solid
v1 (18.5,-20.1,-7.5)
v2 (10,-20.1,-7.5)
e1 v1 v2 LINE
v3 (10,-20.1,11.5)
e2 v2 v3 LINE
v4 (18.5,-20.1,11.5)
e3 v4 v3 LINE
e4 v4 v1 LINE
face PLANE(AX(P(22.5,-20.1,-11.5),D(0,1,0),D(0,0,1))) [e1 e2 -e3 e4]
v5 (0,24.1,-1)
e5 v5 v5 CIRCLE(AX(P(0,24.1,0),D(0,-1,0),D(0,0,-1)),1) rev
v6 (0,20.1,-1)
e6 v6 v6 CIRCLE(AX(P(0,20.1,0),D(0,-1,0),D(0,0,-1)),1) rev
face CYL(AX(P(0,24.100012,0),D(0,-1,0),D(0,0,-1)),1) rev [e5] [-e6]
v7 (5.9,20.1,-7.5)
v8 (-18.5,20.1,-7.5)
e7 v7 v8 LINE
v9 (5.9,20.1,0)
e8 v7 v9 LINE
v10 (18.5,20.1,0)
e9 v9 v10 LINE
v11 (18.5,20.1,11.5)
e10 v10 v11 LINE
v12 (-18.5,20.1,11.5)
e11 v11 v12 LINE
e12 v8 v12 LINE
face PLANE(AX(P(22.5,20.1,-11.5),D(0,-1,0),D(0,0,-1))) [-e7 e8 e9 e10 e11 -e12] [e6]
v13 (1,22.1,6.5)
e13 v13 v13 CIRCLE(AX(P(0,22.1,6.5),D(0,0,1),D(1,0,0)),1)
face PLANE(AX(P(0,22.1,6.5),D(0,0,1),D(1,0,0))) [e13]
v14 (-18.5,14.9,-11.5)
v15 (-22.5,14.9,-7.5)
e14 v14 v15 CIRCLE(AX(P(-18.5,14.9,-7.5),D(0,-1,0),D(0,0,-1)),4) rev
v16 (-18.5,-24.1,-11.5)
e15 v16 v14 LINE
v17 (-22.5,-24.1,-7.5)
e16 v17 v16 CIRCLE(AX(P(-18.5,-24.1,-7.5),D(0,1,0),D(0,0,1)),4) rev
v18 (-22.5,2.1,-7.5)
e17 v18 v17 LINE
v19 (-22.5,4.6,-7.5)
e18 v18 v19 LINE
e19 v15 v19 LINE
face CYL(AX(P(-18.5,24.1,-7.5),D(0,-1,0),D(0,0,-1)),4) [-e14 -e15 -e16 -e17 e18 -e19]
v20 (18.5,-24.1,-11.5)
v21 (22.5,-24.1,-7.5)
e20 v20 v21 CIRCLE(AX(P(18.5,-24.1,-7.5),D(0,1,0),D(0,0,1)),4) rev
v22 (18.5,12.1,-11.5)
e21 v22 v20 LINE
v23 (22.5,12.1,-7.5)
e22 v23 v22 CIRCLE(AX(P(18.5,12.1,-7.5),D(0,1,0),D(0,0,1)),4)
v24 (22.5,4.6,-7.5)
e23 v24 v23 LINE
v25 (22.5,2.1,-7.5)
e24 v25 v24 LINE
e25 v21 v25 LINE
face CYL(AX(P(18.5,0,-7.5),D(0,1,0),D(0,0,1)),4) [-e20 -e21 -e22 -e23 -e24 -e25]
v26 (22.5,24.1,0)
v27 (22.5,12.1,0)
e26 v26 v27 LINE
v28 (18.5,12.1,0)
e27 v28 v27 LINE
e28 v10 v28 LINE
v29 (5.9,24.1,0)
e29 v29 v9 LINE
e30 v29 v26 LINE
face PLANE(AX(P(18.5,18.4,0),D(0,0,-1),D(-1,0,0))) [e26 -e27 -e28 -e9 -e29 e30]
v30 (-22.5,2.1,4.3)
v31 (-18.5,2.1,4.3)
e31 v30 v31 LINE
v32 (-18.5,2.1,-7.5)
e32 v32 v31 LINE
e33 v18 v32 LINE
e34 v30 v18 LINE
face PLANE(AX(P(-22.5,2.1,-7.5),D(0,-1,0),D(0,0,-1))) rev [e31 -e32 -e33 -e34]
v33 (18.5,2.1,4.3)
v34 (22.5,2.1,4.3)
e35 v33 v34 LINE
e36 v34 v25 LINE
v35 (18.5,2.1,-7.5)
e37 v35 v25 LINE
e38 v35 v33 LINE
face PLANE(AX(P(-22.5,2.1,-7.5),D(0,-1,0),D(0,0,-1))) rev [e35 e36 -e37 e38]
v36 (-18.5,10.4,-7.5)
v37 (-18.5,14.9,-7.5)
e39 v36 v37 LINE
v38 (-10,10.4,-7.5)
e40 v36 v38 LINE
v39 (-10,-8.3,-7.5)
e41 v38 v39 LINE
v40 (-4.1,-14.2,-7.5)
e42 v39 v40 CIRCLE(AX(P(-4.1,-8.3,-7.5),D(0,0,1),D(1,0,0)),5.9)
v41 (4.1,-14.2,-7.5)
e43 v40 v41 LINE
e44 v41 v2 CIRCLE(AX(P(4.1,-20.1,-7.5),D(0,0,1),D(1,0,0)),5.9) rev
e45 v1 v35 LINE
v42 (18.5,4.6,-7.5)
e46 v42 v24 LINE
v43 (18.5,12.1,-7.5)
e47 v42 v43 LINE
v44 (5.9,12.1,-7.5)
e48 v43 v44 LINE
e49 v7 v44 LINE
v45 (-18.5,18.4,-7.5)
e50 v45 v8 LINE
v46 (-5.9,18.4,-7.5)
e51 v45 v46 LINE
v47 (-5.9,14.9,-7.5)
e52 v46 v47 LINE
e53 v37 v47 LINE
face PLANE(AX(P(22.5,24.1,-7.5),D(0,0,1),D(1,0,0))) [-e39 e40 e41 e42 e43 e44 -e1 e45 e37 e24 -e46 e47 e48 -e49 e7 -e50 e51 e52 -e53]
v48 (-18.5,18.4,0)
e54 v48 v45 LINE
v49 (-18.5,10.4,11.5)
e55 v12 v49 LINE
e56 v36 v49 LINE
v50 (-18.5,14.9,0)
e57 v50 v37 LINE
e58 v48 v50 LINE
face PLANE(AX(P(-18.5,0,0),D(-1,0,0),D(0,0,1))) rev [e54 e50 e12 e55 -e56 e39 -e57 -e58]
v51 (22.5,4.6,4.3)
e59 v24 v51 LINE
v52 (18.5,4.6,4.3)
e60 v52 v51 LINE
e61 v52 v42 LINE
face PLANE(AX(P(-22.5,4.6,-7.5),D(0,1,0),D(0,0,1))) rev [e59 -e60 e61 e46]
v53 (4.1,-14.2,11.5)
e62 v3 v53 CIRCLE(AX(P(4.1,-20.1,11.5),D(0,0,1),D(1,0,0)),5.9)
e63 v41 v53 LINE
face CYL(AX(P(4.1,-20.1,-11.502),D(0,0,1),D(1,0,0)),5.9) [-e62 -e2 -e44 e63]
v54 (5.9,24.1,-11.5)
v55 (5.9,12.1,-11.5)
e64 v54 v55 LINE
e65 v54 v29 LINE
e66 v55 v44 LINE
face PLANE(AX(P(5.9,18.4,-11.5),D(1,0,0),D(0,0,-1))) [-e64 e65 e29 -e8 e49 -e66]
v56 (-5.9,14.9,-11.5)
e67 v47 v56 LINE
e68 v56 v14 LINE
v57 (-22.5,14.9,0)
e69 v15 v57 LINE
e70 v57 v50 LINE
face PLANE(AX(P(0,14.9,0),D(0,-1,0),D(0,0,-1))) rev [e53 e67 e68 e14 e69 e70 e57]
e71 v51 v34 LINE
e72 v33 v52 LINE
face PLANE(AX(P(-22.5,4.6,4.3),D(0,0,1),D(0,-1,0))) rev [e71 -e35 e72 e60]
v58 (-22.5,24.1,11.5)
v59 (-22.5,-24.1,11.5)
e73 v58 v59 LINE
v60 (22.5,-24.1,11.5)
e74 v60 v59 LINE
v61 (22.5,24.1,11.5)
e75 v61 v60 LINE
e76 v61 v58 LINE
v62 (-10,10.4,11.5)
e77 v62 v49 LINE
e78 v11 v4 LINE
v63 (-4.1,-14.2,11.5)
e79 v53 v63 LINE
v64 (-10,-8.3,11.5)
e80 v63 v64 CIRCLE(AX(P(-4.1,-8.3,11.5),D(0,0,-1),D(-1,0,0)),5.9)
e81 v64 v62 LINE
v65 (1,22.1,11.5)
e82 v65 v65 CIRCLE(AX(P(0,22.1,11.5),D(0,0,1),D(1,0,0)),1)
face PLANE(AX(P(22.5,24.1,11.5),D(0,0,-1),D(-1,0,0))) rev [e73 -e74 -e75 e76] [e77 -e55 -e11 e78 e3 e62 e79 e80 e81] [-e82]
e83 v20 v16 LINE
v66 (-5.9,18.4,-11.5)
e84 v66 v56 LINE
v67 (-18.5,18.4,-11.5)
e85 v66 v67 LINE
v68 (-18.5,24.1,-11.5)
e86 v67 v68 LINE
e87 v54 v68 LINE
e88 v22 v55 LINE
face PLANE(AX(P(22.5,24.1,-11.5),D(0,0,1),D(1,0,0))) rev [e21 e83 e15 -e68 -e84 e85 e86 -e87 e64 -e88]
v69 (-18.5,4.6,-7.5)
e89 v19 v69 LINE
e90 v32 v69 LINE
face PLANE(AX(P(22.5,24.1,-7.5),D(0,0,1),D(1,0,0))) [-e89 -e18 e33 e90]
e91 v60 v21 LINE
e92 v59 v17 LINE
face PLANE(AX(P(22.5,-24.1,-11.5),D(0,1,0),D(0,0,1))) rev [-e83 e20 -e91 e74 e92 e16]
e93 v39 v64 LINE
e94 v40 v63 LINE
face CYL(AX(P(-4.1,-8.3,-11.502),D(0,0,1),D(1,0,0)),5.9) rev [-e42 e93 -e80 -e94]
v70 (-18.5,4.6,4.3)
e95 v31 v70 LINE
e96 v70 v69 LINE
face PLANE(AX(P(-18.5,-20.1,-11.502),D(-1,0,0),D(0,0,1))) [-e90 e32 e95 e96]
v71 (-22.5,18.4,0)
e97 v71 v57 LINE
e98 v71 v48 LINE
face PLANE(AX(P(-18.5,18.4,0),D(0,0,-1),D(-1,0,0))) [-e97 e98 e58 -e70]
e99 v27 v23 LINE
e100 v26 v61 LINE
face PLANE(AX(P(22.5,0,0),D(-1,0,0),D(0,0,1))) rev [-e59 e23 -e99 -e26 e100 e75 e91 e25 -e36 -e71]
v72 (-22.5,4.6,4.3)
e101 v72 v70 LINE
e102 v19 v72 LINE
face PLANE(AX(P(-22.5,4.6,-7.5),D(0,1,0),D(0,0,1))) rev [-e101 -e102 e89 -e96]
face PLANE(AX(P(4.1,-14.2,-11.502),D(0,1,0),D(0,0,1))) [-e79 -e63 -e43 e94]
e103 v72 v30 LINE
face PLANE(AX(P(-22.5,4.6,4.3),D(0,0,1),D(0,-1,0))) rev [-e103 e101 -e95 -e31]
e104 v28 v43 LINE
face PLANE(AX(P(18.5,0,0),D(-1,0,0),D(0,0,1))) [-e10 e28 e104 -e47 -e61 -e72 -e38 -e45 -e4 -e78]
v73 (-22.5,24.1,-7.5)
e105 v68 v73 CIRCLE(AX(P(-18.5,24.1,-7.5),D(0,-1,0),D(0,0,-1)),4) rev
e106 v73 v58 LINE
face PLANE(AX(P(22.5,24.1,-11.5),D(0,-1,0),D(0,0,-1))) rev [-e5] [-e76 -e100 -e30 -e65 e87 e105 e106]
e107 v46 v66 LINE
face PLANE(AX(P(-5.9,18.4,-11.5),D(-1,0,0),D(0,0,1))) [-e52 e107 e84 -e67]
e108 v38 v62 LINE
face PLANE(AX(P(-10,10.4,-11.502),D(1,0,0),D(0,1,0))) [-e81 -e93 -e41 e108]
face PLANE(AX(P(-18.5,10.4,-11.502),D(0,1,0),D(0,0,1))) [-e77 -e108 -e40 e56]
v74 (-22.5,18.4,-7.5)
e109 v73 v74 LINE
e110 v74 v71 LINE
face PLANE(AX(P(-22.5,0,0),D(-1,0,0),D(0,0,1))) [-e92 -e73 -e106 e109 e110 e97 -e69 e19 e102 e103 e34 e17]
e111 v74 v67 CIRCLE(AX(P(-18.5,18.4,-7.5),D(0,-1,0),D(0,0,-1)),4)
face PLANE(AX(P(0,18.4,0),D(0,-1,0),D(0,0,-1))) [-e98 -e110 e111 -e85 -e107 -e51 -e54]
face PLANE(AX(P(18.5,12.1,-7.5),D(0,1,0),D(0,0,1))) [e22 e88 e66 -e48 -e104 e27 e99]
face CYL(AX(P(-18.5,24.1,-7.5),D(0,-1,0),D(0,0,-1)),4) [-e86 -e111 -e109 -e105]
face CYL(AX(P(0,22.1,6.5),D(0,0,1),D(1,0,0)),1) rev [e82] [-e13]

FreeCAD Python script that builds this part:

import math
import FreeCAD as App
import Part
import Sketcher

V = App.Vector
Q = App.Units.Quantity


def edges_at(feature, points):
    """Names of the edges that pass closest to the given points."""
    edges = feature.Shape.Edges
    near = lambda p: min(range(len(edges)), key=lambda i: edges[i].distToShape(Part.Vertex(*p))[0])
    return sorted({f"Edge{near(p) + 1}" for p in points})


def faces_at(feature, points):
    """Names of the faces that lie closest to the given points."""
    faces = feature.Shape.Faces
    near = lambda p: min(range(len(faces)), key=lambda i: faces[i].distToShape(Part.Vertex(*p))[0])
    return sorted({f"Face{near(p) + 1}" for p in points})

doc = App.newDocument("Part")
body = doc.addObject("PartDesign::Body", "Body")

# Sketch on YZ plane
sketch1 = body.newObject("Sketcher::SketchObject", "Sketch")
sketch1.AttachmentSupport = (doc.getObject("YZ_Plane"), [""])
sketch1.MapMode = "FlatFace"
sketch1.addGeometry([
    Part.LineSegment(V(24, 12, 0), V(-24, 12, 0)),
    Part.LineSegment(V(-24, 12, 0), V(-24, -12, 0)),
    Part.LineSegment(V(-24, -12, 0), V(24, -12, 0)),
    Part.LineSegment(V(24, -12, 0), V(24, 12, 0)),
], False)
sketch1.addConstraint([
    Sketcher.Constraint("Coincident", 0, 2, 1, 1),
    Sketcher.Constraint("Coincident", 1, 2, 2, 1),
    Sketcher.Constraint("Coincident", 2, 2, 3, 1),
    Sketcher.Constraint("Coincident", 3, 2, 0, 1),
    Sketcher.Constraint("Horizontal", 0),
    Sketcher.Constraint("Vertical", 1),
    Sketcher.Constraint("Horizontal", 2),
    Sketcher.Constraint("Vertical", 3),
    Sketcher.Constraint("Symmetric", 0, 2, 2, 2, -1, 1),
    Sketcher.Constraint("DistanceY", 1, 2, 1, 1, Q("23 mm")),
    Sketcher.Constraint("DistanceX", 0, 2, 0, 1, Q("48.2 mm")),
])
pad1 = body.newObject("PartDesign::Pad", "Pad")
pad1.Profile = sketch1
pad1.Length = 45
pad1.Midplane = True
doc.recompute()

thickness = body.newObject("PartDesign::Thickness", "Thickness")
thickness.Base = (pad1, faces_at(pad1, [(0, 0, 11.5)]))
thickness.Value = 4
thickness.Reversed = True
thickness.Join = "Intersection"

# Sketch on XZ plane
sketch2 = body.newObject("Sketcher::SketchObject", "Sketch001")
sketch2.AttachmentSupport = (doc.getObject("XZ_Plane"), [""])
sketch2.MapMode = "FlatFace"
sketch2.AttachmentOffset = App.Placement(V(0, 0, -14.9), App.Rotation())
sketch2.addGeometry([
    Part.LineSegment(V(-5.9, -11.5, 0), V(-22.5, -11.5, 0)),  # 0
    Part.LineSegment(V(-22.5, -11.5, 0), V(-22.5, 0, 0)),  # 1
    Part.LineSegment(V(-22.5, 0, 0), V(-18.5, 0, 0)),  # 2
    Part.LineSegment(V(-18.5, 0, 0), V(-18.5, -7.5, 0)),  # 3
    Part.LineSegment(V(-18.5, -7.5, 0), V(-5.9, -7.5, 0)),  # 4
    Part.LineSegment(V(-5.9, -7.5, 0), V(-5.9, -11.5, 0)),  # 5
    Part.LineSegment(V(18.5, 0, 0), V(22.5, 0, 0)),  # 6
    Part.LineSegment(V(22.5, 0, 0), V(22.5, -11.5, 0)),  # 7
    Part.LineSegment(V(22.5, -11.5, 0), V(5.9, -11.5, 0)),  # 8
    Part.LineSegment(V(5.9, -11.5, 0), V(5.9, -7.5, 0)),  # 9
    Part.LineSegment(V(5.9, -7.5, 0), V(18.5, -7.5, 0)),  # 10
    Part.LineSegment(V(18.5, -7.5, 0), V(18.5, 0, 0)),  # 11
], False)
sketch2.addConstraint([
    Sketcher.Constraint("Coincident", 0, 2, 1, 1),
    Sketcher.Constraint("Coincident", 1, 2, 2, 1),
    Sketcher.Constraint("Coincident", 2, 2, 3, 1),
    Sketcher.Constraint("Coincident", 3, 2, 4, 1),
    Sketcher.Constraint("Coincident", 4, 2, 5, 1),
    Sketcher.Constraint("Coincident", 5, 2, 0, 1),
    Sketcher.Constraint("Coincident", 6, 2, 7, 1),
    Sketcher.Constraint("Coincident", 7, 2, 8, 1),
    Sketcher.Constraint("Coincident", 8, 2, 9, 1),
    Sketcher.Constraint("Coincident", 9, 2, 10, 1),
    Sketcher.Constraint("Coincident", 10, 2, 11, 1),
    Sketcher.Constraint("Coincident", 11, 2, 6, 1),
    Sketcher.Constraint("Horizontal", 0),
    Sketcher.Constraint("Vertical", 1),
    Sketcher.Constraint("Horizontal", 2),
    Sketcher.Constraint("Vertical", 3),
    Sketcher.Constraint("Horizontal", 4),
    Sketcher.Constraint("Vertical", 5),
    Sketcher.Constraint("Horizontal", 6),
    Sketcher.Constraint("Vertical", 7),
    Sketcher.Constraint("Horizontal", 8),
    Sketcher.Constraint("Vertical", 9),
    Sketcher.Constraint("Horizontal", 10),
    Sketcher.Constraint("Vertical", 11),
    Sketcher.Constraint("Symmetric", 1, 2, 6, 2, -1, 1),
    Sketcher.Constraint("Symmetric", 5, 2, 8, 2, -2),
    Sketcher.Constraint("Symmetric", 3, 2, 10, 2, -2),
    Sketcher.Constraint("PointOnObject", 1, 2, -1),
    Sketcher.Constraint("Equal", 6, 5),
    Sketcher.Constraint("DistanceX", 2, 1, 2, 2, Q("4 mm")),
    Sketcher.Constraint("DistanceX", 0, 2, 0, 1, Q("16.6 mm")),
    Sketcher.Constraint("DistanceY", 1, 1, 1, 2, Q("11.5 mm")),
    Sketcher.Constraint("DistanceX", 2, 2, 6, 2, Q("41 mm")),
])
pocket1 = body.newObject("PartDesign::Pocket", "Pocket")
pocket1.Profile = sketch2
pocket1.Length = 3.5
doc.recompute()

fillet = body.newObject("PartDesign::Fillet", "Fillet")
fillet.Base = (pocket1, edges_at(pocket1, [
    (-22.5, 21.25, -11.5),
    (22.5, 21.25, -11.5),
    (22.5, -4.6, -11.5),
    (-22.5, -4.6, -11.5),
]))
fillet.Radius = 4

# Sketch on YZ plane
sketch3 = body.newObject("Sketcher::SketchObject", "Sketch002")
sketch3.AttachmentSupport = (doc.getObject("YZ_Plane"), [""])
sketch3.MapMode = "FlatFace"
sketch3.addGeometry([
    Part.LineSegment(V(4.6, 4.3, 0), V(2.1, 4.3, 0)),
    Part.LineSegment(V(2.1, 4.3, 0), V(2.1, -7.5, 0)),
    Part.LineSegment(V(2.1, -7.5, 0), V(4.6, -7.5, 0)),
    Part.LineSegment(V(4.6, -7.5, 0), V(4.6, 4.3, 0)),
], False)
sketch3.addConstraint([
    Sketcher.Constraint("Coincident", 0, 2, 1, 1),
    Sketcher.Constraint("Coincident", 1, 2, 2, 1),
    Sketcher.Constraint("Coincident", 2, 2, 3, 1),
    Sketcher.Constraint("Coincident", 3, 2, 0, 1),
    Sketcher.Constraint("Horizontal", 0),
    Sketcher.Constraint("Vertical", 1),
    Sketcher.Constraint("Horizontal", 2),
    Sketcher.Constraint("Vertical", 3),
    Sketcher.Constraint("DistanceX", 0, 2, 0, 1, Q("2.5 mm")),
    Sketcher.Constraint("DistanceY", 1, 2, 1, 1, Q("11.8 mm")),
    Sketcher.Constraint("DistanceX", -1, 1, 0, 2, Q("2.1 mm")),
    Sketcher.Constraint("DistanceY", -1, 1, 0, 2, Q("4.3 mm")),
])
pocket2 = body.newObject("PartDesign::Pocket", "Pocket001")
pocket2.Profile = sketch3
pocket2.Type = "ThroughAll"
pocket2.Midplane = True

# Sketch on XZ plane
sketch4 = body.newObject("Sketcher::SketchObject", "Sketch003")
sketch4.AttachmentSupport = (doc.getObject("XZ_Plane"), [""])
sketch4.MapMode = "FlatFace"
sketch4.AttachmentOffset = App.Placement(V(0, 0, -24.1), App.Rotation())
sketch4.addGeometry(Part.Circle(V(0, 0, 0), V(0, 0, 1), 1), False)
sketch4.addConstraint([
    Sketcher.Constraint("Coincident", 0, 3, -1, 1),
    Sketcher.Constraint("Diameter", 0, Q("2 mm")),
])
pocket3 = body.newObject("PartDesign::Pocket", "Pocket002")
pocket3.Profile = sketch4
pocket3.Type = "UpToFirst"
pocket3.Reversed = True

# Sketch on XZ plane
sketch5 = body.newObject("Sketcher::SketchObject", "Sketch004")
sketch5.AttachmentSupport = (doc.getObject("XZ_Plane"), [""])
sketch5.MapMode = "FlatFace"
sketch5.AttachmentOffset = App.Placement(V(0, 0, -24.1), App.Rotation())
sketch5.addGeometry(Part.Circle(V(0, 0, 0), V(0, 0, 1), 1), False)
sketch5.addConstraint([
    Sketcher.Constraint("Coincident", 0, 3, -1, 1),
    Sketcher.Constraint("Diameter", 0, Q("2 mm")),
])
pocket4 = body.newObject("PartDesign::Pocket", "Pocket003")
pocket4.Profile = sketch5
pocket4.Length = 1

# Sketch on XY plane
sketch6 = body.newObject("Sketcher::SketchObject", "Sketch005")
sketch6.AttachmentSupport = (doc.getObject("XY_Plane"), [""])
sketch6.MapMode = "FlatFace"
sketch6.AttachmentOffset = App.Placement(V(0, 0, 11.5), App.Rotation())
sketch6.addGeometry(Part.Circle(V(0, 22.1, 0), V(0, 0, 1), 1), False)
sketch6.addConstraint([
    Sketcher.Constraint("PointOnObject", 0, 3, -2),
    Sketcher.Constraint("Diameter", 0, Q("2 mm")),
    Sketcher.Constraint("DistanceY", -1, 1, 0, 3, Q("22.1 mm")),
])
pocket5 = body.newObject("PartDesign::Pocket", "Pocket004")
pocket5.Profile = sketch6
pocket5.Length = 5

# Sketch on XY plane
sketch7 = body.newObject("Sketcher::SketchObject", "Sketch006")
sketch7.AttachmentSupport = (doc.getObject("XY_Plane"), [""])
sketch7.MapMode = "FlatFace"
sketch7.AttachmentOffset = App.Placement(V(0, 0, 11.5), App.Rotation())
sketch7.addGeometry([
    Part.LineSegment(V(-10, -20, 0), V(10, -20, 0)),
    Part.ArcOfCircle(Part.Circle(V(4, -20, 0), V(0, 0, 1), 6), math.radians(0), math.radians(90)),
    Part.LineSegment(V(4, -14, 0), V(-4, -14, 0)),
    Part.ArcOfCircle(Part.Circle(V(-4, -20, 0), V(0, 0, 1), 6), math.radians(90), math.radians(180)),
], False)
sketch7.addConstraint([
    Sketcher.Constraint("Coincident", 0, 2, 1, 1),
    Sketcher.Constraint("Tangent", 1, 2, 2, 1),
    Sketcher.Constraint("Tangent", 2, 2, 3, 1),
    Sketcher.Constraint("Coincident", 3, 2, 0, 1),
    Sketcher.Constraint("Horizontal", 0),
    Sketcher.Constraint("Horizontal", 2),
    Sketcher.Constraint("Equal", 1, 3),
    Sketcher.Constraint("Horizontal", 3, 3, 0, 2),
    Sketcher.Constraint("Radius", 1, Q("5.9 mm")),
    Sketcher.Constraint("DistanceX", 0, 1, 0, 2, Q("20 mm")),
    Sketcher.Constraint("DistanceX", -1, 1, 0, 2, Q("10 mm")),
    Sketcher.Constraint("DistanceY", 1, 3, -1, 1, Q("20.1 mm")),
])
pad2 = body.newObject("PartDesign::Pad", "Pad001")
pad2.Profile = sketch7
pad2.Type = "UpToFirst"
pad2.Reversed = True

# Sketch on XZ plane
sketch8 = body.newObject("Sketcher::SketchObject", "Sketch007")
sketch8.AttachmentSupport = (doc.getObject("XZ_Plane"), [""])
sketch8.MapMode = "FlatFace"
sketch8.AttachmentOffset = App.Placement(V(0, 0, -12.1), App.Rotation())
sketch8.addGeometry([
    Part.LineSegment(V(5.9, 0, 0), V(22.5, 0, 0)),  # 0
    Part.LineSegment(V(22.5, 0, 0), V(22.5, -7.5, 0)),  # 1
    Part.ArcOfCircle(Part.Circle(V(18.5, -7.5, 0), V(0, 0, 1), 4), math.radians(-90), math.radians(0)),  # 2
    Part.LineSegment(V(18.5, -11.5, 0), V(5.9, -11.5, 0)),  # 3
    Part.LineSegment(V(5.9, -11.5, 0), V(5.9, 0, 0)),  # 4
], False)
sketch8.addConstraint([
    Sketcher.Constraint("Coincident", 0, 2, 1, 1),
    Sketcher.Constraint("Tangent", 1, 2, 2, 2),
    Sketcher.Constraint("Tangent", 2, 1, 3, 1),
    Sketcher.Constraint("Coincident", 3, 2, 4, 1),
    Sketcher.Constraint("Coincident", 4, 2, 0, 1),
    Sketcher.Constraint("Horizontal", 0),
    Sketcher.Constraint("Vertical", 1),
    Sketcher.Constraint("Horizontal", 3),
    Sketcher.Constraint("Vertical", 4),
    Sketcher.Constraint("PointOnObject", 0, 2, -1),
    Sketcher.Constraint("Radius", 2, Q("4 mm")),
    Sketcher.Constraint("DistanceX", 0, 1, 0, 2, Q("16.6 mm")),
    Sketcher.Constraint("DistanceY", 1, 2, 1, 1, Q("7.5 mm")),
    Sketcher.Constraint("DistanceX", -1, 1, 2, 3, Q("18.5 mm")),
])
pocket6 = body.newObject("PartDesign::Pocket", "Pocket005")
pocket6.Profile = sketch8
pocket6.Type = "ThroughAll"

# Sketch on XY plane
sketch9 = body.newObject("Sketcher::SketchObject", "Sketch008")
sketch9.AttachmentSupport = (doc.getObject("XY_Plane"), [""])
sketch9.MapMode = "FlatFace"
sketch9.AttachmentOffset = App.Placement(V(0, 0, 11.5), App.Rotation())
sketch9.addGeometry([
    Part.LineSegment(V(-18, 10, 0), V(-18, -20, 0)),  # 0
    Part.LineSegment(V(-18, -20, 0), V(-10, -20, 0)),  # 1
    Part.ArcOfCircle(Part.Circle(V(-4, -20, 0), V(0, 0, 1), 6), math.radians(90), math.radians(180)),  # 2
    Part.ArcOfCircle(Part.Circle(V(-4, -8, 0), V(0, 0, 1), 6), math.radians(180), math.radians(270)),  # 3
    Part.LineSegment(V(-10, -8, 0), V(-10, 10, 0)),  # 4
    Part.LineSegment(V(-10, 10, 0), V(-18, 10, 0)),  # 5
], False)
sketch9.addConstraint([
    Sketcher.Constraint("Coincident", 0, 2, 1, 1),
    Sketcher.Constraint("Coincident", 1, 2, 2, 2),
    Sketcher.Constraint("Tangent", 2, 1, 3, 2),
    Sketcher.Constraint("Tangent", 3, 1, 4, 1),
    Sketcher.Constraint("Coincident", 4, 2, 5, 1),
    Sketcher.Constraint("Coincident", 5, 2, 0, 1),
    Sketcher.Constraint("Vertical", 0),
    Sketcher.Constraint("Horizontal", 1),
    Sketcher.Constraint("Vertical", 4),
    Sketcher.Constraint("Horizontal", 5),
    Sketcher.Constraint("Equal", 2, 3),
    Sketcher.Constraint("Horizontal", 2, 3, 0, 2),
    Sketcher.Constraint("Vertical", 2, 3, 3, 3),
    Sketcher.Constraint("Radius", 2, Q("5.9 mm")),
    Sketcher.Constraint("DistanceX", 1, 1, 1, 2, Q("8.5 mm")),
    Sketcher.Constraint("DistanceY", 0, 2, 0, 1, Q("30.5 mm")),
    Sketcher.Constraint("DistanceX", 1, 2, -1, 1, Q("10 mm")),
    Sketcher.Constraint("DistanceY", 2, 3, -1, 1, Q("20.1 mm")),
])
pad3 = body.newObject("PartDesign::Pad", "Pad002")
pad3.Profile = sketch9
pad3.Type = "UpToFirst"
pad3.Reversed = True

doc.recompute()
